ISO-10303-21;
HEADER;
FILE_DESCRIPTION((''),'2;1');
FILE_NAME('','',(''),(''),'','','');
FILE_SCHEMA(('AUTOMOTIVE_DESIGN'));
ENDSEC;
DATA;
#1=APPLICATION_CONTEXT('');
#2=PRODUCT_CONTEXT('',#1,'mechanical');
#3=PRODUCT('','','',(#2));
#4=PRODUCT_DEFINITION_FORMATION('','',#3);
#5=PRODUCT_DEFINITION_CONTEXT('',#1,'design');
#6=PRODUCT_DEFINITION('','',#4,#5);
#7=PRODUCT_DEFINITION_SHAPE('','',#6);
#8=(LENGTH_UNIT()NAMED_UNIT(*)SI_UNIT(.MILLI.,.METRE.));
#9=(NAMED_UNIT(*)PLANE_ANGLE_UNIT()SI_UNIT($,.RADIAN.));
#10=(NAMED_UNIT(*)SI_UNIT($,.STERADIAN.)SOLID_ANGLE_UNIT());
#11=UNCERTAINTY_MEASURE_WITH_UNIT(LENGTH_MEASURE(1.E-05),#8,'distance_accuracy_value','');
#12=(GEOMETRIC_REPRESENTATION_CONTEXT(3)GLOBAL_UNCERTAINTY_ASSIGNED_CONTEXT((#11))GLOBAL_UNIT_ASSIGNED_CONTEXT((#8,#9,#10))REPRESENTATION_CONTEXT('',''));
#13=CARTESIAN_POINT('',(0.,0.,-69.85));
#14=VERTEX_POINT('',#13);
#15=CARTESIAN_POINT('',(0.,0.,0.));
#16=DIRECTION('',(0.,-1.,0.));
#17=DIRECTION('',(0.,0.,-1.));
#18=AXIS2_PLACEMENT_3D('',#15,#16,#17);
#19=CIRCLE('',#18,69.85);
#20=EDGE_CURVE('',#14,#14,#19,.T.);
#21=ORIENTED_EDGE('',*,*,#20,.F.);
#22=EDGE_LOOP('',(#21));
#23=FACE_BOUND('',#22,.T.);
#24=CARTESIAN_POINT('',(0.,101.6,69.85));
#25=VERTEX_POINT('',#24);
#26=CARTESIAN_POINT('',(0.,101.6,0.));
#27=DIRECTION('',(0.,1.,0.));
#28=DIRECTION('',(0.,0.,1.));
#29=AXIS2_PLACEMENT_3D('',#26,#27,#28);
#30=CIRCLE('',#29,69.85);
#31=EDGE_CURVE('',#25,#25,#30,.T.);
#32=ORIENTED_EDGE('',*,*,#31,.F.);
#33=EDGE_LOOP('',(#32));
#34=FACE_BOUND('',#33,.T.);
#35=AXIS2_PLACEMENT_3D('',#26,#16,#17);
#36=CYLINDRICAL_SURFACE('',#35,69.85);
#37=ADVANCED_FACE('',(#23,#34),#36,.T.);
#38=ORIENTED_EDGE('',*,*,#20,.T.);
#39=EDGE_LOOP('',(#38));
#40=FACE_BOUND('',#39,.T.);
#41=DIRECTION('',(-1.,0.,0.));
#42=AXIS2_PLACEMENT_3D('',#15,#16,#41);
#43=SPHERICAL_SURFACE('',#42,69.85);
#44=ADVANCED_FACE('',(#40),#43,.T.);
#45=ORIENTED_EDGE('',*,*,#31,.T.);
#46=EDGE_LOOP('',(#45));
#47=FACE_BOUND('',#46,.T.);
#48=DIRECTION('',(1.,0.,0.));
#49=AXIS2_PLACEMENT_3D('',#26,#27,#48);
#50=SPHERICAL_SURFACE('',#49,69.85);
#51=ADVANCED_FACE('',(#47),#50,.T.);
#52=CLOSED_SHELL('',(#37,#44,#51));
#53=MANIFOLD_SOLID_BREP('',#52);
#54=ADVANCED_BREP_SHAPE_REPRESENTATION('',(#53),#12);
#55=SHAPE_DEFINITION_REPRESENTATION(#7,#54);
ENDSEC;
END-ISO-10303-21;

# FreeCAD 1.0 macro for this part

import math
import FreeCAD as App
import Part
import Sketcher
Q = App.Units.Quantity

doc = App.newDocument("Part")
body = doc.addObject("PartDesign::Body", "Body")

sketch1 = body.newObject("Sketcher::SketchObject", "Sketch")
sketch1.AttachmentSupport = (doc.getObject("XZ_Plane"), [""])
sketch1.MapMode = "FlatFace"
sketch1.addGeometry(Part.Circle(App.Vector(0, 0, 0), App.Vector(0, 0, 1), 69.85), False)
sketch1.addConstraint([
    Sketcher.Constraint("Coincident", 0, 3, -1, 1),
    Sketcher.Constraint("Diameter", 0, Q("5.5 in")),
])
pad1 = body.newObject("PartDesign::Pad", "Pad")
pad1.Profile = sketch1
pad1.Length = Q("4 in")
pad1.Reversed = True

sketch2 = body.newObject("Sketcher::SketchObject", "Sketch001")
sketch2.AttachmentSupport = (doc.getObject("XY_Plane"), [""])
sketch2.MapMode = "FlatFace"
sketch2.addGeometry([
    Part.LineSegment(App.Vector(0, 101.6, 0), App.Vector(0, 171.45, 0)),
    Part.ArcOfCircle(Part.Circle(App.Vector(0, 101.6, 0), App.Vector(0, 0, 1), 69.85), math.radians(90), math.radians(180)),
    Part.LineSegment(App.Vector(-69.85, 101.6, 0), App.Vector(0, 101.6, 0)),
], False)
sketch2.addConstraint([
    Sketcher.Constraint("Coincident", 0, 2, 1, 1),
    Sketcher.Constraint("Coincident", 1, 2, 2, 1),
    Sketcher.Constraint("Coincident", 2, 2, 0, 1),
    Sketcher.Constraint("Vertical", 0),
    Sketcher.Constraint("Horizontal", 2),
    Sketcher.Constraint("Coincident", 2, 2, 1, 3),
    Sketcher.Constraint("PointOnObject", 1, 3, -2),
    Sketcher.Constraint("Radius", 1, Q("2.75 in")),
    Sketcher.Constraint("DistanceY", -1, 1, 1, 3, Q("4 in")),
])
revolution = body.newObject("PartDesign::Revolution", "Revolution")
revolution.Profile = sketch2
revolution.ReferenceAxis = (sketch2, ["V_Axis"])
revolution.Angle = 360

sketch3 = body.newObject("Sketcher::SketchObject", "Sketch002")
sketch3.AttachmentSupport = (doc.getObject("XY_Plane"), [""])
sketch3.MapMode = "FlatFace"
sketch3.addGeometry([
    Part.LineSegment(App.Vector(0, -69.85, 0), App.Vector(0, 0, 0)),
    Part.LineSegment(App.Vector(0, 0, 0), App.Vector(-69.85, 0, 0)),
    Part.ArcOfCircle(Part.Circle(App.Vector(0, 0, 0), App.Vector(0, 0, 1), 69.85), math.radians(180), math.radians(270)),
], False)
sketch3.addConstraint([
    Sketcher.Constraint("Coincident", 0, 2, 1, 1),
    Sketcher.Constraint("Coincident", 1, 2, 2, 1),
    Sketcher.Constraint("Coincident", 2, 2, 0, 1),
    Sketcher.Constraint("Vertical", 0),
    Sketcher.Constraint("Horizontal", 1),
    Sketcher.Constraint("Coincident", 2, 3, -1, 1),
    Sketcher.Constraint("Coincident", 0, 2, -1, 1),
    Sketcher.Constraint("Radius", 2, Q("2.75 in")),
])
revolution2 = body.newObject("PartDesign::Revolution", "Revolution001")
revolution2.Profile = sketch3
revolution2.ReferenceAxis = (sketch3, ["V_Axis"])
revolution2.Angle = 360

doc.recompute()
